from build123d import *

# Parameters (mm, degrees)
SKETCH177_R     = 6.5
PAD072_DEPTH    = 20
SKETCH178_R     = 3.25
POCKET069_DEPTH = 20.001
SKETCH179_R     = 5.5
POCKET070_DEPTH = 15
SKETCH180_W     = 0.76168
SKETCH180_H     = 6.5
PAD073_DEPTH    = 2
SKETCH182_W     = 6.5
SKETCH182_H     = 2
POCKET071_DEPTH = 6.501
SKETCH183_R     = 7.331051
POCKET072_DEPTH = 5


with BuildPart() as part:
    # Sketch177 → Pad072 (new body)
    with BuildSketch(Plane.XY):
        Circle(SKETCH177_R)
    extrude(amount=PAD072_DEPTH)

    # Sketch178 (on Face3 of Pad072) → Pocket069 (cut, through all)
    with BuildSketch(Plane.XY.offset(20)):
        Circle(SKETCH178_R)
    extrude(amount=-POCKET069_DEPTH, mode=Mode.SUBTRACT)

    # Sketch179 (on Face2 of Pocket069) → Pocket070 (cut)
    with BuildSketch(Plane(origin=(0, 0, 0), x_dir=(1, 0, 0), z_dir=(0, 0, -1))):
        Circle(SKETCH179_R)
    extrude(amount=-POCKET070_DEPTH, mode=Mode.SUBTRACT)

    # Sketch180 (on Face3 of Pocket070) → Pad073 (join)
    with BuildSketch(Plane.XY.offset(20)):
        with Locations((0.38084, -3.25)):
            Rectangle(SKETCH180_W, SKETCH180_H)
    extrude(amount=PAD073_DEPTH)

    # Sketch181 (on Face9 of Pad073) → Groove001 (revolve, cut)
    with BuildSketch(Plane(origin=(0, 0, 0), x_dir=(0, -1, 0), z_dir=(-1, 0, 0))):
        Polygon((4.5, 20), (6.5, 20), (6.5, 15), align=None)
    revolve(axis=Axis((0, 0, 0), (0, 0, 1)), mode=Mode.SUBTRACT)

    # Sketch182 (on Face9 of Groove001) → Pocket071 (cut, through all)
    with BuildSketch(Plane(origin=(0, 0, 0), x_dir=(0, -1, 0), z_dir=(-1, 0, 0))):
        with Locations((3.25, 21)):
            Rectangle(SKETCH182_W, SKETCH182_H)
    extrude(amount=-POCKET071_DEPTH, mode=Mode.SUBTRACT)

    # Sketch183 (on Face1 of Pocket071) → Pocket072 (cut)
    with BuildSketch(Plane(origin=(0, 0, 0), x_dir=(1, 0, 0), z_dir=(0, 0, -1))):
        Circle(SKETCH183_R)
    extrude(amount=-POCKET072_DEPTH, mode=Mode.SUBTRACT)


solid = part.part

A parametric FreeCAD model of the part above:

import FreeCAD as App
import Part
import Sketcher

V = App.Vector
Q = App.Units.Quantity


def add_polygon(sketch, points):
    """Adds a closed chain of lines whose ends are joined by coincident constraints."""
    first, n = sketch.GeometryCount, len(points)
    for a, b in zip(points, points[1:] + points[:1]):
        sketch.addGeometry(Part.LineSegment(App.Vector(*a, 0), App.Vector(*b, 0)), False)
    for i in range(n):
        sketch.addConstraint(Sketcher.Constraint("Coincident", first + i, 2, first + (i + 1) % n, 1))

doc = App.newDocument("Part")
body = doc.addObject("PartDesign::Body", "Body")

# Sketch on XY plane
sketch1 = body.newObject("Sketcher::SketchObject", "Sketch")
sketch1.AttachmentSupport = (doc.getObject("XY_Plane"), [""])
sketch1.MapMode = "FlatFace"
sketch1.addGeometry(Part.Circle(V(0, 0, 0), V(0, 0, 1), 6), False)
sketch1.addConstraint(Sketcher.Constraint("Coincident", 0, 3, -1, 1))
sketch1.addConstraint(Sketcher.Constraint("Diameter", 0, Q("13 mm")))
pad1 = body.newObject("PartDesign::Pad", "Pad")
pad1.Profile = sketch1
pad1.Length = 20

# Sketch on XY plane
sketch2 = body.newObject("Sketcher::SketchObject", "Sketch001")
sketch2.AttachmentSupport = (doc.getObject("XY_Plane"), [""])
sketch2.MapMode = "FlatFace"
sketch2.AttachmentOffset = App.Placement(V(0, 0, 20), App.Rotation())
sketch2.addGeometry(Part.Circle(V(0, 0, 0), V(0, 0, 1), 3.2), False)
sketch2.addConstraint(Sketcher.Constraint("Coincident", 0, 3, -1, 1))
sketch2.addConstraint(Sketcher.Constraint("Diameter", 0, Q("6.5 mm")))
pocket1 = body.newObject("PartDesign::Pocket", "Pocket")
pocket1.Profile = sketch2
pocket1.Type = "ThroughAll"

# Sketch on XY plane
sketch3 = body.newObject("Sketcher::SketchObject", "Sketch002")
sketch3.AttachmentSupport = (doc.getObject("XY_Plane"), [""])
sketch3.MapMode = "FlatFace"
sketch3.addGeometry(Part.Circle(V(0, 0, 0), V(0, 0, 1), 6), False)
sketch3.addConstraint(Sketcher.Constraint("Coincident", 0, 3, -1, 1))
sketch3.addConstraint(Sketcher.Constraint("Diameter", 0, Q("11 mm")))
pocket2 = body.newObject("PartDesign::Pocket", "Pocket001")
pocket2.Profile = sketch3
pocket2.Length = 15
pocket2.Reversed = True

# Sketch on XY plane
sketch4 = body.newObject("Sketcher::SketchObject", "Sketch003")
sketch4.AttachmentSupport = (doc.getObject("XY_Plane"), [""])
sketch4.MapMode = "FlatFace"
sketch4.AttachmentOffset = App.Placement(V(0, 0, 20), App.Rotation())
add_polygon(sketch4, [(0, 0), (0, -6.5), (0.8, -6.5), (0.8, 0)])  # lines 0-3
sketch4.addConstraint(Sketcher.Constraint("Vertical", 0))
sketch4.addConstraint(Sketcher.Constraint("Horizontal", 1))
sketch4.addConstraint(Sketcher.Constraint("Vertical", 2))
sketch4.addConstraint(Sketcher.Constraint("Horizontal", 3))
sketch4.addConstraint(Sketcher.Constraint("Coincident", 3, 2, -1, 1))
sketch4.addConstraint(Sketcher.Constraint("DistanceY", 0, 2, 0, 1, Q("6.5 mm")))
sketch4.addConstraint(Sketcher.Constraint("DistanceX", 1, 1, 1, 2, Q("0.76168 mm")))
pad2 = body.newObject("PartDesign::Pad", "Pad001")
pad2.Profile = sketch4
pad2.Length = 2

# Sketch on YZ plane
sketch5 = body.newObject("Sketcher::SketchObject", "Sketch004")
sketch5.AttachmentSupport = (doc.getObject("YZ_Plane"), [""])
sketch5.MapMode = "FlatFace"
add_polygon(sketch5, [(-6.5, 20), (-4.5, 20), (-6.5, 15)])  # lines 0-2
sketch5.addConstraint(Sketcher.Constraint("Horizontal", 0))
sketch5.addConstraint(Sketcher.Constraint("Vertical", 2))
sketch5.addConstraint(Sketcher.Constraint("DistanceX", 0, 1, 0, 2, Q("2 mm")))
sketch5.addConstraint(Sketcher.Constraint("DistanceY", 2, 1, 2, 2, Q("5 mm")))
sketch5.addConstraint(Sketcher.Constraint("DistanceY", -1, 1, 0, 2, Q("20 mm")))
sketch5.addConstraint(Sketcher.Constraint("DistanceX", 0, 2, -1, 1, Q("4.5 mm")))
groove = body.newObject("PartDesign::Groove", "Groove")
groove.Profile = sketch5
groove.ReferenceAxis = (sketch5, ["V_Axis"])
groove.Angle = 360

# Sketch on YZ plane
sketch6 = body.newObject("Sketcher::SketchObject", "Sketch005")
sketch6.AttachmentSupport = (doc.getObject("YZ_Plane"), [""])
sketch6.MapMode = "FlatFace"
add_polygon(sketch6, [(0, 22), (0, 20), (-6.5, 20), (-6.5, 22)])  # lines 0-3
sketch6.addConstraint(Sketcher.Constraint("Vertical", 0))
sketch6.addConstraint(Sketcher.Constraint("Horizontal", 1))
sketch6.addConstraint(Sketcher.Constraint("Vertical", 2))
sketch6.addConstraint(Sketcher.Constraint("Horizontal", 3))
sketch6.addConstraint(Sketcher.Constraint("PointOnObject", 0, 2, -2))
sketch6.addConstraint(Sketcher.Constraint("DistanceY", 0, 2, 0, 1, Q("2 mm")))
sketch6.addConstraint(Sketcher.Constraint("DistanceX", 1, 2, 1, 1, Q("6.5 mm")))
sketch6.addConstraint(Sketcher.Constraint("DistanceY", -1, 1, 0, 2, Q("20 mm")))
pocket3 = body.newObject("PartDesign::Pocket", "Pocket002")
pocket3.Profile = sketch6
pocket3.Type = "ThroughAll"
pocket3.Reversed = True

# Sketch on XY plane
sketch7 = body.newObject("Sketcher::SketchObject", "Sketch006")
sketch7.AttachmentSupport = (doc.getObject("XY_Plane"), [""])
sketch7.MapMode = "FlatFace"
sketch7.addGeometry(Part.Circle(V(0, 0, 0), V(0, 0, 1), 7), False)
sketch7.addConstraint(Sketcher.Constraint("Coincident", 0, 3, -1, 1))
sketch7.addConstraint(Sketcher.Constraint("Diameter", 0, Q("14.662102 mm")))
pocket4 = body.newObject("PartDesign::Pocket", "Pocket003")
pocket4.Profile = sketch7
pocket4.Length = 5
pocket4.Reversed = True

doc.recompute()
